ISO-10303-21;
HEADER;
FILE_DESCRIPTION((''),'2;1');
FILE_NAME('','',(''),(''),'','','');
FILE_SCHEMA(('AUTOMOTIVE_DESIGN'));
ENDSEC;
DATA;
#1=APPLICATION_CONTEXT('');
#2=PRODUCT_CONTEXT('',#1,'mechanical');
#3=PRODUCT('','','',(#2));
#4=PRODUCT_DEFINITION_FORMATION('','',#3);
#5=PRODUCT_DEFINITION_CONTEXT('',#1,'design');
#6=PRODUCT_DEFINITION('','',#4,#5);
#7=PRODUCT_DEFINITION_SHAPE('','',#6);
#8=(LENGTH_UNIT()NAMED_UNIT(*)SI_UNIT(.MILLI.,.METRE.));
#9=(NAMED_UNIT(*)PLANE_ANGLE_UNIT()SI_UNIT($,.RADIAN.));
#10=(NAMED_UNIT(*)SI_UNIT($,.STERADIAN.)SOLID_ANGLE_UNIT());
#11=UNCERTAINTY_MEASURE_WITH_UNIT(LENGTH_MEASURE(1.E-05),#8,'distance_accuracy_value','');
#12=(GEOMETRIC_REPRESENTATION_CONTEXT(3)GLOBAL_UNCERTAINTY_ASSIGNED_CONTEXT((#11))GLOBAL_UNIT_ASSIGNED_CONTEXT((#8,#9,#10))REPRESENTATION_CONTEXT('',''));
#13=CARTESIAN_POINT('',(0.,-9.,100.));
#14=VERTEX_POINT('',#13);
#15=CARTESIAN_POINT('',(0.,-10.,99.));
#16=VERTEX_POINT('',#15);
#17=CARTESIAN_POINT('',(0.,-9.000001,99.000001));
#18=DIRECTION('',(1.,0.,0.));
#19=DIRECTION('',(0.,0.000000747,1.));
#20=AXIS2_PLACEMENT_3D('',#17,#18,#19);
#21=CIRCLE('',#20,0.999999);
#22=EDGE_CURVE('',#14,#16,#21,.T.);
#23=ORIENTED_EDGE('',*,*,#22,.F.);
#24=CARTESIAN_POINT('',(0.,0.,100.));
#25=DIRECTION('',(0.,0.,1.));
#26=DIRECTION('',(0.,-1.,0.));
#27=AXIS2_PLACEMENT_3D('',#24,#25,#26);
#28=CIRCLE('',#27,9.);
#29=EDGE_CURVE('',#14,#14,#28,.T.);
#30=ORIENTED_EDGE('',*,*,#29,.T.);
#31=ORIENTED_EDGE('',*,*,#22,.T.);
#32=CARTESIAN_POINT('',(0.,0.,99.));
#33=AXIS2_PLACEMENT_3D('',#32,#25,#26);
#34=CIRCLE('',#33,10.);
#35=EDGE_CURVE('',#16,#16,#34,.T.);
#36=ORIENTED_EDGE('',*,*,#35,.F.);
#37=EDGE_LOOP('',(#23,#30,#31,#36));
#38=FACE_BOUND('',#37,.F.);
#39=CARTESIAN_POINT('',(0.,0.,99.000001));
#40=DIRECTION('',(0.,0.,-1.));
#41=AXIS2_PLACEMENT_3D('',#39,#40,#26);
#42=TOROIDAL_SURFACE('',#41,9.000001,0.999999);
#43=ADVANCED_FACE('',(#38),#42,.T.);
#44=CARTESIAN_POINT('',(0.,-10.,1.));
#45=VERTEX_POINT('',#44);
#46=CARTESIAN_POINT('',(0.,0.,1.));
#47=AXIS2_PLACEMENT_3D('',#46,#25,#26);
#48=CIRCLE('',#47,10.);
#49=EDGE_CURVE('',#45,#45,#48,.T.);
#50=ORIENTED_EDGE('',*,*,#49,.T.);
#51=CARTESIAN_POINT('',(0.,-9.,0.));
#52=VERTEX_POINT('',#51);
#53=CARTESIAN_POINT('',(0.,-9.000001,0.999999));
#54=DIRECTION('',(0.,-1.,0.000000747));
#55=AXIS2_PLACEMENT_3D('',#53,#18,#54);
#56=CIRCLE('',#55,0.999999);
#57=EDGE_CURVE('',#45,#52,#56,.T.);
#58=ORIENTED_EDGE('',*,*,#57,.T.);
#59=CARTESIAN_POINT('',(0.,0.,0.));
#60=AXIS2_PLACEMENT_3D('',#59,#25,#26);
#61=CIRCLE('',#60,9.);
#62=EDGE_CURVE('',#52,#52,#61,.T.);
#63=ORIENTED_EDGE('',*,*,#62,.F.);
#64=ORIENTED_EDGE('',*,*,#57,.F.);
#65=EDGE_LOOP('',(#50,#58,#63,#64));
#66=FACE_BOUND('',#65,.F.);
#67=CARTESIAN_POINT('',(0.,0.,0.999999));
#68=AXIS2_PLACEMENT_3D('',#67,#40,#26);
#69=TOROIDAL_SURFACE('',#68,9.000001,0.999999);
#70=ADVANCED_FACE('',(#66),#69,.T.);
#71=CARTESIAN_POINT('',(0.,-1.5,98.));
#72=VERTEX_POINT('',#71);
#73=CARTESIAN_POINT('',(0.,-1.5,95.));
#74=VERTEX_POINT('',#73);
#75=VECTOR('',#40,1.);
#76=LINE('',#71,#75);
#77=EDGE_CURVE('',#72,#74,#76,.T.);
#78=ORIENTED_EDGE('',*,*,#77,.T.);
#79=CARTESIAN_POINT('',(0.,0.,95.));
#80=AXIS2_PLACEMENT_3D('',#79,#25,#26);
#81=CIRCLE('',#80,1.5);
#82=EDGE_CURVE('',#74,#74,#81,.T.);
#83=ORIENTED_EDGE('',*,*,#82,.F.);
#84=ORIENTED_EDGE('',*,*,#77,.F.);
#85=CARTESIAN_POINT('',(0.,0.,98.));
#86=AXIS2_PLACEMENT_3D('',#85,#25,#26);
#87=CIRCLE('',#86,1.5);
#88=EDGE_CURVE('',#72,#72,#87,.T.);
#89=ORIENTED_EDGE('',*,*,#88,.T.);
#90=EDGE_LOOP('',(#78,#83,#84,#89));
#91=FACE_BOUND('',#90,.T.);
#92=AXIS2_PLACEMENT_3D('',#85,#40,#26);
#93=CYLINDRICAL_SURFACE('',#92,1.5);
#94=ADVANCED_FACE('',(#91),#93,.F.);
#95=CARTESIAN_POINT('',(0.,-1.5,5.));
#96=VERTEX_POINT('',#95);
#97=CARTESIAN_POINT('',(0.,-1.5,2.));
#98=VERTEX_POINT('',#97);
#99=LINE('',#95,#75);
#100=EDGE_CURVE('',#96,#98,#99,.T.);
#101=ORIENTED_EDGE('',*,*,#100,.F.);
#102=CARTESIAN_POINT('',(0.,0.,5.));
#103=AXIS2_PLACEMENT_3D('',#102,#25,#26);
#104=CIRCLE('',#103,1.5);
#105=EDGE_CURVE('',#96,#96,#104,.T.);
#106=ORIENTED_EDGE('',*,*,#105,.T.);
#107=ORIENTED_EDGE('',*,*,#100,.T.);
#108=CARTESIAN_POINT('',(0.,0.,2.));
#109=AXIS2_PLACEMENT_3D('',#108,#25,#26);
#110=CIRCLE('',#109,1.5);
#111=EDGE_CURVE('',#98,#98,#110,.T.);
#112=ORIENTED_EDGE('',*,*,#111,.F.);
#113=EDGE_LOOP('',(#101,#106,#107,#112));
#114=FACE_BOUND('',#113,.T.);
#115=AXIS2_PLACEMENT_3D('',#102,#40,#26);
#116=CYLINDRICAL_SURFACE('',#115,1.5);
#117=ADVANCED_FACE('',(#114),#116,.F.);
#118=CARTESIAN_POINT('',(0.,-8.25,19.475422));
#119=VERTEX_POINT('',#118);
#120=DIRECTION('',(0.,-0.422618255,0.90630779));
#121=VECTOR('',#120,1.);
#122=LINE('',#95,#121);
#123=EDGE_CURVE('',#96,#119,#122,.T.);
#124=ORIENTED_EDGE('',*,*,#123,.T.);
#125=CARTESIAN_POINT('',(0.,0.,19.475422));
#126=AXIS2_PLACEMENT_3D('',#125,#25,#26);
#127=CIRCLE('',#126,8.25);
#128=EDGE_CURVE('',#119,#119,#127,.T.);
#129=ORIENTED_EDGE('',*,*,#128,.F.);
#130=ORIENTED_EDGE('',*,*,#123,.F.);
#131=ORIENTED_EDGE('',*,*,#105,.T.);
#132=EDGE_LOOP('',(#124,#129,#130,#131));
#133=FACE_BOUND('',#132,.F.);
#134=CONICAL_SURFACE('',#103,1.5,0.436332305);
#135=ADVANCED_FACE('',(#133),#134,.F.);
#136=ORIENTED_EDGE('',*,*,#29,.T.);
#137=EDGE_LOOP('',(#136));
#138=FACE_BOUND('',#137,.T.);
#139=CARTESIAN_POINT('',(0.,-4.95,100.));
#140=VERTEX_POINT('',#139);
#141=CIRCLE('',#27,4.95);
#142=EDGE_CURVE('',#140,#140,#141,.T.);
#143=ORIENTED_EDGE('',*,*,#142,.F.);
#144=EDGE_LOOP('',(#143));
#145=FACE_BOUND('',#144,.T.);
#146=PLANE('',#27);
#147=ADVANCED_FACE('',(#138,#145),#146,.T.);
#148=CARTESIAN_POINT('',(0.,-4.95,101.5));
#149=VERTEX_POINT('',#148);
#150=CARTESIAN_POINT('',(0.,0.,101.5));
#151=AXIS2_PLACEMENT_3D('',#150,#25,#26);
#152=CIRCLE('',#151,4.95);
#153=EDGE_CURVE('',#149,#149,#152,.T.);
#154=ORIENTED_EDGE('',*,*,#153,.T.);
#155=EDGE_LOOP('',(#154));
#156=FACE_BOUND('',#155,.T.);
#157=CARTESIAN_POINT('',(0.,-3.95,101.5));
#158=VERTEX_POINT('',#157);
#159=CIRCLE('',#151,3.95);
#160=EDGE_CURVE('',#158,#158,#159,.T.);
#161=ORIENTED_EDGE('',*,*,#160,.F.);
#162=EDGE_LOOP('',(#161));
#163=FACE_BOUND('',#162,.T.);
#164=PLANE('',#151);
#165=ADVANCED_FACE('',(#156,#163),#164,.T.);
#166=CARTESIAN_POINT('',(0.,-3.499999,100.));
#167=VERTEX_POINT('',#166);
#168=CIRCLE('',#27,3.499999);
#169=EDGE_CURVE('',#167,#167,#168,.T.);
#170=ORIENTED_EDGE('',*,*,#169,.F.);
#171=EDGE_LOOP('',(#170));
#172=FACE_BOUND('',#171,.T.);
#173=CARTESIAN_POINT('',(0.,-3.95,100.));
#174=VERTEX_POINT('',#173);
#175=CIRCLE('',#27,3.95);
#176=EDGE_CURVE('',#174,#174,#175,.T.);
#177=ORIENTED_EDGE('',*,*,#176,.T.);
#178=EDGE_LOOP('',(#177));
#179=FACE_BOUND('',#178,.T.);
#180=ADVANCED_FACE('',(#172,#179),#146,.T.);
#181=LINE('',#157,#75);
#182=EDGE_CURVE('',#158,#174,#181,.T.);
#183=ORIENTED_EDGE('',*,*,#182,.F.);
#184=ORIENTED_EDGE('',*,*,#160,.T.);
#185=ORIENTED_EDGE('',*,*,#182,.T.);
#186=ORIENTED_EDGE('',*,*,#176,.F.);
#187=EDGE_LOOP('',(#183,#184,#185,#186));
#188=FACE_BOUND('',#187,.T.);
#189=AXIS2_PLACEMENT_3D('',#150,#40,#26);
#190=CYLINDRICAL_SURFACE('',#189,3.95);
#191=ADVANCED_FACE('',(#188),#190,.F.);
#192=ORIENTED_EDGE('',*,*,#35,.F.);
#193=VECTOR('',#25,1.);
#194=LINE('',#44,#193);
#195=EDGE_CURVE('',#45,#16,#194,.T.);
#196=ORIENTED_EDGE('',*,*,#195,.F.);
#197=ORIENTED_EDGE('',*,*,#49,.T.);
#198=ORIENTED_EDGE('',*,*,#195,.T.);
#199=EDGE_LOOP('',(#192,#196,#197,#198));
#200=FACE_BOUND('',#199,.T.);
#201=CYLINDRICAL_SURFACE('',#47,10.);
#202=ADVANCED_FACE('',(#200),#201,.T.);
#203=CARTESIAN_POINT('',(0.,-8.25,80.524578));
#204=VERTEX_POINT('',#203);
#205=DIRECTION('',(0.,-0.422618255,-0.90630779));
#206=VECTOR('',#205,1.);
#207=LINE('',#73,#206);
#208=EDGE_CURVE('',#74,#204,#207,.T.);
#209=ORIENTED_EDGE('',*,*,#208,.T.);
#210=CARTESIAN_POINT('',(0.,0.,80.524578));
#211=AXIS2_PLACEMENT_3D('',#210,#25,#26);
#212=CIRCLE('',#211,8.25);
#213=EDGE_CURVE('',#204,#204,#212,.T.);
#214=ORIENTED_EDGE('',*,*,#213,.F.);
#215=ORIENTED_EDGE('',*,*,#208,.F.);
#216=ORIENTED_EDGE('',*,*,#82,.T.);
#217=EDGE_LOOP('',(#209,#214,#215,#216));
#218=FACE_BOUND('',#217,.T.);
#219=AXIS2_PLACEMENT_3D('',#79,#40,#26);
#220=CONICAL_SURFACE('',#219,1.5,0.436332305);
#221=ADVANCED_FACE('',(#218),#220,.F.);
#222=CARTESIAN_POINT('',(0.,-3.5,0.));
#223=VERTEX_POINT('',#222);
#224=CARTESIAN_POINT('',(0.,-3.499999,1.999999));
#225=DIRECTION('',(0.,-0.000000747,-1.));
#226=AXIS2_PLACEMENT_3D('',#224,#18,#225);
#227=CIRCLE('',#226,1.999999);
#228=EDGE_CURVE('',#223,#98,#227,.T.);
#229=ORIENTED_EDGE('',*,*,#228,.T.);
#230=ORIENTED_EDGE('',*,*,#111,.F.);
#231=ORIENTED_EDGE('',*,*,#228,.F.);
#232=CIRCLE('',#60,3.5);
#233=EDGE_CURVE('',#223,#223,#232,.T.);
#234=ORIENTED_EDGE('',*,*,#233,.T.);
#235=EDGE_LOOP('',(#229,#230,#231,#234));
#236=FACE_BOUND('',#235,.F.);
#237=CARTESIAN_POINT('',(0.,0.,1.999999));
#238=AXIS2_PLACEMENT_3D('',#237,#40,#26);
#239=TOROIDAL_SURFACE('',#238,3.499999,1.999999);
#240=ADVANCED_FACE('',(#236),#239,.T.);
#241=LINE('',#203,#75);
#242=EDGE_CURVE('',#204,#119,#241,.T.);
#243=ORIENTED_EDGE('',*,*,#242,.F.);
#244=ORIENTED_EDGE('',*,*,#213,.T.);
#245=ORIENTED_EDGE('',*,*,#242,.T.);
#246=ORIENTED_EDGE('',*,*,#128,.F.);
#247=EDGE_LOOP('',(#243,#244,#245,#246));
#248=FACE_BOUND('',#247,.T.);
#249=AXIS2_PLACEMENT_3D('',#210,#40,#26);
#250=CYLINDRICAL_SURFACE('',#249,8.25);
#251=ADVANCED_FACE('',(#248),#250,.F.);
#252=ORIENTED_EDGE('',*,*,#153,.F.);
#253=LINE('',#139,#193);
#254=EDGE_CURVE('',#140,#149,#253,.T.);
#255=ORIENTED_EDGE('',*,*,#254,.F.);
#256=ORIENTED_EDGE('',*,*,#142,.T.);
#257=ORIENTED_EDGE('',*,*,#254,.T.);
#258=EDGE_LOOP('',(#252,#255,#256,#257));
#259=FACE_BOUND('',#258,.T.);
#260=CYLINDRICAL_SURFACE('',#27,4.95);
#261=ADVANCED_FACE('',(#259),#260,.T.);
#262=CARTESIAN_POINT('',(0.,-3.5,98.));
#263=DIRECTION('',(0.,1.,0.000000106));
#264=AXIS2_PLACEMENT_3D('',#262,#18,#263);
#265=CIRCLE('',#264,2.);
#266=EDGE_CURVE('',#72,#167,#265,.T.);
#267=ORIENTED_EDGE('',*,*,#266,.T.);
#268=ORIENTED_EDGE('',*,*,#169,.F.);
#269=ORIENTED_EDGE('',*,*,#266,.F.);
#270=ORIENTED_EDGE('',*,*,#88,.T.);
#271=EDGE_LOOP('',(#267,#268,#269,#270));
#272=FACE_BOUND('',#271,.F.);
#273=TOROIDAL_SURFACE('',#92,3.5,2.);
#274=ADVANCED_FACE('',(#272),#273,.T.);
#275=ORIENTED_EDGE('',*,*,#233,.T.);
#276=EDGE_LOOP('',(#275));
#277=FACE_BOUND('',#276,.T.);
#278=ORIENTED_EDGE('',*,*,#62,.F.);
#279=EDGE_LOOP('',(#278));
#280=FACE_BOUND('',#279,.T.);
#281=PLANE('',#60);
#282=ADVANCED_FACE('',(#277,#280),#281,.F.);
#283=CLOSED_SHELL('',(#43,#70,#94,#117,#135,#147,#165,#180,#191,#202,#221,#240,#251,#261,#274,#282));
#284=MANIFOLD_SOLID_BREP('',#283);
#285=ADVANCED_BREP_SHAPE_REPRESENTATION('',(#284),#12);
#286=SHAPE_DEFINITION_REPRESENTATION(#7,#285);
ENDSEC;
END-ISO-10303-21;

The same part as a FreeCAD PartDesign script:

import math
import FreeCAD as App
import Part
import Sketcher
from FreeCAD import Vector
Q = App.Units.Quantity

doc = App.newDocument("Part")
body = doc.addObject("PartDesign::Body", "Body")

# Sketch on YZ plane
sketch1 = body.newObject("Sketcher::SketchObject", "Sketch")
sketch1.AttachmentSupport = (doc.getObject("YZ_Plane"), [""])
sketch1.MapMode = "FlatFace"
sketch1.addGeometry(Part.LineSegment(Vector(-1.5, 2, 0), Vector(-1.5, 5, 0)), False)
sketch1.addGeometry(Part.LineSegment(Vector(-1.5, 5, 0), Vector(-8.25, 19.48, 0)), False)
sketch1.addGeometry(Part.LineSegment(Vector(-8.25, 19.48, 0), Vector(-8.25, 80.52, 0)), False)
sketch1.addGeometry(Part.LineSegment(Vector(-8.25, 80.52, 0), Vector(-1.5, 95, 0)), False)
sketch1.addGeometry(Part.LineSegment(Vector(-1.5, 95, 0), Vector(-1.5, 98, 0)), False)
sketch1.addGeometry(Part.ArcOfCircle(Part.Circle(Vector(-3.5, 98, 0), Vector(0, 0, 1), 2), math.radians(0), math.radians(90)), False)
sketch1.addGeometry(Part.LineSegment(Vector(-3.5, 100, 0), Vector(-3.95, 100, 0)), False)
sketch1.addGeometry(Part.LineSegment(Vector(-3.95, 100, 0), Vector(-3.95, 101.5, 0)), False)
sketch1.addGeometry(Part.LineSegment(Vector(-3.95, 101.5, 0), Vector(-4.95, 101.5, 0)), False)
sketch1.addGeometry(Part.LineSegment(Vector(-4.95, 101.5, 0), Vector(-4.95, 100, 0)), False)
sketch1.addGeometry(Part.LineSegment(Vector(-4.95, 100, 0), Vector(-9, 100, 0)), False)
sketch1.addGeometry(Part.ArcOfCircle(Part.Circle(Vector(-9, 99, 0), Vector(0, 0, 1), 1), math.radians(90), math.radians(180)), False)
sketch1.addGeometry(Part.LineSegment(Vector(-10, 99, 0), Vector(-10, 1, 0)), False)
sketch1.addGeometry(Part.ArcOfCircle(Part.Circle(Vector(-9, 1, 0), Vector(0, 0, 1), 1), math.radians(180), math.radians(270)), False)
sketch1.addGeometry(Part.LineSegment(Vector(-9, 0, 0), Vector(-3.5, 0, 0)), False)
sketch1.addGeometry(Part.ArcOfCircle(Part.Circle(Vector(-3.5, 2, 0), Vector(0, 0, 1), 2), math.radians(-90), math.radians(0)), False)
sketch1.addConstraint(Sketcher.Constraint("Coincident", 0, 2, 1, 1))
sketch1.addConstraint(Sketcher.Constraint("Coincident", 1, 2, 2, 1))
sketch1.addConstraint(Sketcher.Constraint("Coincident", 2, 2, 3, 1))
sketch1.addConstraint(Sketcher.Constraint("Coincident", 3, 2, 4, 1))
sketch1.addConstraint(Sketcher.Constraint("Tangent", 4, 2, 5, 1))
sketch1.addConstraint(Sketcher.Constraint("Tangent", 5, 2, 6, 1))
sketch1.addConstraint(Sketcher.Constraint("Coincident", 6, 2, 7, 1))
sketch1.addConstraint(Sketcher.Constraint("Coincident", 7, 2, 8, 1))
sketch1.addConstraint(Sketcher.Constraint("Coincident", 8, 2, 9, 1))
sketch1.addConstraint(Sketcher.Constraint("Coincident", 9, 2, 10, 1))
sketch1.addConstraint(Sketcher.Constraint("Tangent", 10, 2, 11, 1))
sketch1.addConstraint(Sketcher.Constraint("Tangent", 11, 2, 12, 1))
sketch1.addConstraint(Sketcher.Constraint("Tangent", 12, 2, 13, 1))
sketch1.addConstraint(Sketcher.Constraint("Tangent", 13, 2, 14, 1))
sketch1.addConstraint(Sketcher.Constraint("Tangent", 14, 2, 15, 1))
sketch1.addConstraint(Sketcher.Constraint("Tangent", 15, 2, 0, 1))
sketch1.addConstraint(Sketcher.Constraint("Vertical", 0))
sketch1.addConstraint(Sketcher.Constraint("Vertical", 2))
sketch1.addConstraint(Sketcher.Constraint("Vertical", 4))
sketch1.addConstraint(Sketcher.Constraint("Horizontal", 6))
sketch1.addConstraint(Sketcher.Constraint("Vertical", 7))
sketch1.addConstraint(Sketcher.Constraint("Horizontal", 8))
sketch1.addConstraint(Sketcher.Constraint("Vertical", 9))
sketch1.addConstraint(Sketcher.Constraint("Horizontal", 10))
sketch1.addConstraint(Sketcher.Constraint("Vertical", 12))
sketch1.addConstraint(Sketcher.Constraint("Horizontal", 14))
sketch1.addConstraint(Sketcher.Constraint("Equal", 11, 13))
sketch1.addConstraint(Sketcher.Constraint("Equal", 5, 15))
sketch1.addConstraint(Sketcher.Constraint("PointOnObject", 13, 2, -1))
sketch1.addConstraint(Sketcher.Constraint("Horizontal", 6, 2, 9, 2))
sketch1.addConstraint(Sketcher.Constraint("Vertical", 5, 3, 15, 3))
sketch1.addConstraint(Sketcher.Constraint("Equal", 0, 4))
sketch1.addConstraint(Sketcher.Constraint("Equal", 1, 3))
sketch1.addConstraint(Sketcher.Constraint("Radius", 5, 2.0))
sketch1.addConstraint(Sketcher.Constraint("Radius", 11, 0.999999))
sketch1.addConstraint(Sketcher.Constraint("DistanceX", 8, 2, 8, 1, 1.0))
sketch1.addConstraint(Sketcher.Constraint("DistanceY", 0, 1, 0, 2, 3.0))
sketch1.addConstraint(Sketcher.Constraint("DistanceY", 12, 2, 12, 1, 98.0))
sketch1.addConstraint(Sketcher.Constraint("Angle", 1, Q("115 deg")))
sketch1.addConstraint(Sketcher.Constraint("DistanceX", 14, 1, 14, 2, 5.5))
sketch1.addConstraint(Sketcher.Constraint("DistanceY", 7, 1, 7, 2, 1.5))
sketch1.addConstraint(Sketcher.Constraint("DistanceX", 11, 3, -1, 1, 9.000001))
sketch1.addConstraint(Sketcher.Constraint("DistanceX", 6, 2, 6, 1, 0.450001))
sketch1.addConstraint(Sketcher.Constraint("DistanceX", 1, 2, -1, 1, 8.25))
revolution = body.newObject("PartDesign::Revolution", "Revolution")
revolution.Profile = sketch1
revolution.ReferenceAxis = (sketch1, ["V_Axis"])
revolution.Angle = 360

doc.recompute()
